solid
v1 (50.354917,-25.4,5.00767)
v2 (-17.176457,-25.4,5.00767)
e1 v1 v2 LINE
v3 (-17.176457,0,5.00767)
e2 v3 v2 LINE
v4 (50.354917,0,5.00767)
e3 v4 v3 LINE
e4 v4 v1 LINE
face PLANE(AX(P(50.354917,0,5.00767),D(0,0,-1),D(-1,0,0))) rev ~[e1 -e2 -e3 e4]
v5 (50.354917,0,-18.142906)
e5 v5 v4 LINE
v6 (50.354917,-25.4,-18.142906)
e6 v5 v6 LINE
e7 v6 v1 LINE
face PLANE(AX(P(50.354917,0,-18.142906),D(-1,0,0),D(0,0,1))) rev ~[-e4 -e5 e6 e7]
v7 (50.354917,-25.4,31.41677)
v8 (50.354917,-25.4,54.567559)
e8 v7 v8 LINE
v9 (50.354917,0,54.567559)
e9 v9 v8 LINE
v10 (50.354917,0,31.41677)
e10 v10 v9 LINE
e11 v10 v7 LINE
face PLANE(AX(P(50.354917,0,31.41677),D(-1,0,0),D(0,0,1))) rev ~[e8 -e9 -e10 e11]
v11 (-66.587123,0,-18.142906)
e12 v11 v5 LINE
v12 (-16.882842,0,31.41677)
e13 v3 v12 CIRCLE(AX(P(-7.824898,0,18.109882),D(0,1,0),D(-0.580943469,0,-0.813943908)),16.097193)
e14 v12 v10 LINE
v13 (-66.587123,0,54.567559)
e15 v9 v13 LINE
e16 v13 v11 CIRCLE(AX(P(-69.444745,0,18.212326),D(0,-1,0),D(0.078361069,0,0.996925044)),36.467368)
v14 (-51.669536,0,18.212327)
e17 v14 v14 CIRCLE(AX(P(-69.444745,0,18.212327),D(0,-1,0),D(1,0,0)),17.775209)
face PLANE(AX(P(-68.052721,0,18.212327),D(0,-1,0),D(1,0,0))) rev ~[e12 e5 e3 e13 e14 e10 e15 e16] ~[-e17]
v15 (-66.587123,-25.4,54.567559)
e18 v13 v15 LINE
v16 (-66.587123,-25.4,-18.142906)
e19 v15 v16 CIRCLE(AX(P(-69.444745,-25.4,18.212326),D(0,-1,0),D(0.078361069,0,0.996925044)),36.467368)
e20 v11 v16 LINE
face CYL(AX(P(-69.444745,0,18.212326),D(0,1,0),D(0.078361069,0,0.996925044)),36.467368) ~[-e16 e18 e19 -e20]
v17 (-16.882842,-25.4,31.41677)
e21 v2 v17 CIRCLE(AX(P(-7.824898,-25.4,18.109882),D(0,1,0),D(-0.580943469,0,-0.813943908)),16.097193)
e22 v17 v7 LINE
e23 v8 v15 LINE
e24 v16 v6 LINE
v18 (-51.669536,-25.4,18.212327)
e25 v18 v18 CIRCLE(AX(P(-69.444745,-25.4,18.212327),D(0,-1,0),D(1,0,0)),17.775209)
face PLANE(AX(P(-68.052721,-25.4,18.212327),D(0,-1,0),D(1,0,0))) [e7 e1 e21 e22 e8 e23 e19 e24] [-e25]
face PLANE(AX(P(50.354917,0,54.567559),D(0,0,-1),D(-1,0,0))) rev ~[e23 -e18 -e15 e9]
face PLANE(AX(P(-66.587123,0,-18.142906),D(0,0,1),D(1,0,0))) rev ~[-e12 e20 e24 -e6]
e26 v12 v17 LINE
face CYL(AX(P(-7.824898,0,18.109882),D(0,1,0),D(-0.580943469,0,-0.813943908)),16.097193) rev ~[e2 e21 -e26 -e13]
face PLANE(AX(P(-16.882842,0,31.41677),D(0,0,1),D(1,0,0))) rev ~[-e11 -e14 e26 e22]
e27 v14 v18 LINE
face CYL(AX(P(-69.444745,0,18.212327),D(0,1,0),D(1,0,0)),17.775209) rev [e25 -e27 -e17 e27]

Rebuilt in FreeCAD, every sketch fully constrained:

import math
import FreeCAD as App
import Part
import Sketcher

V = App.Vector
Q = App.Units.Quantity

doc = App.newDocument("Part")
body = doc.addObject("PartDesign::Body", "Body")

# Sketch on XZ plane
sketch1 = doc.addObject("Sketcher::SketchObject", "Sketch")
body.addObject(sketch1)
sketch1.AttachmentSupport = (doc.XZ_Plane, [""])
sketch1.MapMode = "FlatFace"
sketch1.addGeometry(Part.ArcOfCircle(Part.Circle(V(-69, 18, 0), V(0, 0, 1), 36), math.radians(86), math.radians(274)), False)
sketch1.addGeometry(Part.LineSegment(V(-67, -18, 0), V(50, -18, 0)), False)
sketch1.addGeometry(Part.LineSegment(V(50, -18, 0), V(50, 5, 0)), False)
sketch1.addGeometry(Part.LineSegment(V(50, 5, 0), V(-17, 5, 0)), False)
sketch1.addGeometry(Part.ArcOfCircle(Part.Circle(V(-8, 18, 0), V(0, 0, 1), 16), math.radians(124), math.radians(234)), False)
sketch1.addGeometry(Part.LineSegment(V(-17, 31, 0), V(50, 31, 0)), False)
sketch1.addGeometry(Part.LineSegment(V(50, 31, 0), V(50, 55, 0)), False)
sketch1.addGeometry(Part.LineSegment(V(50, 55, 0), V(-67, 55, 0)), False)
sketch1.addGeometry(Part.Circle(V(-69, 18, 0), V(0, 0, 1), 18), False)
sketch1.addConstraint(Sketcher.Constraint("Coincident", 0, 2, 1, 1))
sketch1.addConstraint(Sketcher.Constraint("Coincident", 1, 2, 2, 1))
sketch1.addConstraint(Sketcher.Constraint("Coincident", 2, 2, 3, 1))
sketch1.addConstraint(Sketcher.Constraint("Coincident", 3, 2, 4, 2))
sketch1.addConstraint(Sketcher.Constraint("Coincident", 4, 1, 5, 1))
sketch1.addConstraint(Sketcher.Constraint("Coincident", 5, 2, 6, 1))
sketch1.addConstraint(Sketcher.Constraint("Coincident", 6, 2, 7, 1))
sketch1.addConstraint(Sketcher.Constraint("Coincident", 7, 2, 0, 1))
sketch1.addConstraint(Sketcher.Constraint("Horizontal", 1))
sketch1.addConstraint(Sketcher.Constraint("Vertical", 2))
sketch1.addConstraint(Sketcher.Constraint("Horizontal", 3))
sketch1.addConstraint(Sketcher.Constraint("Horizontal", 5))
sketch1.addConstraint(Sketcher.Constraint("Vertical", 6))
sketch1.addConstraint(Sketcher.Constraint("Horizontal", 7))
sketch1.addConstraint(Sketcher.Constraint("Coincident", 8, 3, 0, 3))
sketch1.addConstraint(Sketcher.Constraint("Vertical", 2, 2, 5, 2))
sketch1.addConstraint(Sketcher.Constraint("Vertical", 0, 2, 7, 2))
sketch1.addConstraint(Sketcher.Constraint("Radius", 0, Q("36.467368 mm")))
sketch1.addConstraint(Sketcher.Constraint("Diameter", 8, Q("35.550418 mm")))
sketch1.addConstraint(Sketcher.Constraint("Radius", 4, Q("16.097193 mm")))
sketch1.addConstraint(Sketcher.Constraint("DistanceX", 1, 1, 1, 2, Q("116.94204 mm")))
sketch1.addConstraint(Sketcher.Constraint("DistanceX", 5, 1, 5, 2, Q("67.237759 mm")))
sketch1.addConstraint(Sketcher.Constraint("DistanceY", 6, 1, 6, 2, Q("23.150789 mm")))
sketch1.addConstraint(Sketcher.Constraint("DistanceY", 3, 2, 4, 1, Q("26.4091 mm")))
sketch1.addConstraint(Sketcher.Constraint("DistanceX", 3, 2, 3, 1, Q("67.531374 mm")))
sketch1.addConstraint(Sketcher.Constraint("DistanceY", 2, 1, 2, 2, Q("23.150576 mm")))
sketch1.addConstraint(Sketcher.Constraint("DistanceY", -1, 1, 2, 2, Q("5.00767 mm")))
sketch1.addConstraint(Sketcher.Constraint("DistanceX", 0, 3, -1, 1, Q("69.444745 mm")))
pad1 = doc.addObject("PartDesign::Pad", "Pad")
body.addObject(pad1)
pad1.Profile = sketch1
pad1.Length = Q("1 in")

doc.recompute()
